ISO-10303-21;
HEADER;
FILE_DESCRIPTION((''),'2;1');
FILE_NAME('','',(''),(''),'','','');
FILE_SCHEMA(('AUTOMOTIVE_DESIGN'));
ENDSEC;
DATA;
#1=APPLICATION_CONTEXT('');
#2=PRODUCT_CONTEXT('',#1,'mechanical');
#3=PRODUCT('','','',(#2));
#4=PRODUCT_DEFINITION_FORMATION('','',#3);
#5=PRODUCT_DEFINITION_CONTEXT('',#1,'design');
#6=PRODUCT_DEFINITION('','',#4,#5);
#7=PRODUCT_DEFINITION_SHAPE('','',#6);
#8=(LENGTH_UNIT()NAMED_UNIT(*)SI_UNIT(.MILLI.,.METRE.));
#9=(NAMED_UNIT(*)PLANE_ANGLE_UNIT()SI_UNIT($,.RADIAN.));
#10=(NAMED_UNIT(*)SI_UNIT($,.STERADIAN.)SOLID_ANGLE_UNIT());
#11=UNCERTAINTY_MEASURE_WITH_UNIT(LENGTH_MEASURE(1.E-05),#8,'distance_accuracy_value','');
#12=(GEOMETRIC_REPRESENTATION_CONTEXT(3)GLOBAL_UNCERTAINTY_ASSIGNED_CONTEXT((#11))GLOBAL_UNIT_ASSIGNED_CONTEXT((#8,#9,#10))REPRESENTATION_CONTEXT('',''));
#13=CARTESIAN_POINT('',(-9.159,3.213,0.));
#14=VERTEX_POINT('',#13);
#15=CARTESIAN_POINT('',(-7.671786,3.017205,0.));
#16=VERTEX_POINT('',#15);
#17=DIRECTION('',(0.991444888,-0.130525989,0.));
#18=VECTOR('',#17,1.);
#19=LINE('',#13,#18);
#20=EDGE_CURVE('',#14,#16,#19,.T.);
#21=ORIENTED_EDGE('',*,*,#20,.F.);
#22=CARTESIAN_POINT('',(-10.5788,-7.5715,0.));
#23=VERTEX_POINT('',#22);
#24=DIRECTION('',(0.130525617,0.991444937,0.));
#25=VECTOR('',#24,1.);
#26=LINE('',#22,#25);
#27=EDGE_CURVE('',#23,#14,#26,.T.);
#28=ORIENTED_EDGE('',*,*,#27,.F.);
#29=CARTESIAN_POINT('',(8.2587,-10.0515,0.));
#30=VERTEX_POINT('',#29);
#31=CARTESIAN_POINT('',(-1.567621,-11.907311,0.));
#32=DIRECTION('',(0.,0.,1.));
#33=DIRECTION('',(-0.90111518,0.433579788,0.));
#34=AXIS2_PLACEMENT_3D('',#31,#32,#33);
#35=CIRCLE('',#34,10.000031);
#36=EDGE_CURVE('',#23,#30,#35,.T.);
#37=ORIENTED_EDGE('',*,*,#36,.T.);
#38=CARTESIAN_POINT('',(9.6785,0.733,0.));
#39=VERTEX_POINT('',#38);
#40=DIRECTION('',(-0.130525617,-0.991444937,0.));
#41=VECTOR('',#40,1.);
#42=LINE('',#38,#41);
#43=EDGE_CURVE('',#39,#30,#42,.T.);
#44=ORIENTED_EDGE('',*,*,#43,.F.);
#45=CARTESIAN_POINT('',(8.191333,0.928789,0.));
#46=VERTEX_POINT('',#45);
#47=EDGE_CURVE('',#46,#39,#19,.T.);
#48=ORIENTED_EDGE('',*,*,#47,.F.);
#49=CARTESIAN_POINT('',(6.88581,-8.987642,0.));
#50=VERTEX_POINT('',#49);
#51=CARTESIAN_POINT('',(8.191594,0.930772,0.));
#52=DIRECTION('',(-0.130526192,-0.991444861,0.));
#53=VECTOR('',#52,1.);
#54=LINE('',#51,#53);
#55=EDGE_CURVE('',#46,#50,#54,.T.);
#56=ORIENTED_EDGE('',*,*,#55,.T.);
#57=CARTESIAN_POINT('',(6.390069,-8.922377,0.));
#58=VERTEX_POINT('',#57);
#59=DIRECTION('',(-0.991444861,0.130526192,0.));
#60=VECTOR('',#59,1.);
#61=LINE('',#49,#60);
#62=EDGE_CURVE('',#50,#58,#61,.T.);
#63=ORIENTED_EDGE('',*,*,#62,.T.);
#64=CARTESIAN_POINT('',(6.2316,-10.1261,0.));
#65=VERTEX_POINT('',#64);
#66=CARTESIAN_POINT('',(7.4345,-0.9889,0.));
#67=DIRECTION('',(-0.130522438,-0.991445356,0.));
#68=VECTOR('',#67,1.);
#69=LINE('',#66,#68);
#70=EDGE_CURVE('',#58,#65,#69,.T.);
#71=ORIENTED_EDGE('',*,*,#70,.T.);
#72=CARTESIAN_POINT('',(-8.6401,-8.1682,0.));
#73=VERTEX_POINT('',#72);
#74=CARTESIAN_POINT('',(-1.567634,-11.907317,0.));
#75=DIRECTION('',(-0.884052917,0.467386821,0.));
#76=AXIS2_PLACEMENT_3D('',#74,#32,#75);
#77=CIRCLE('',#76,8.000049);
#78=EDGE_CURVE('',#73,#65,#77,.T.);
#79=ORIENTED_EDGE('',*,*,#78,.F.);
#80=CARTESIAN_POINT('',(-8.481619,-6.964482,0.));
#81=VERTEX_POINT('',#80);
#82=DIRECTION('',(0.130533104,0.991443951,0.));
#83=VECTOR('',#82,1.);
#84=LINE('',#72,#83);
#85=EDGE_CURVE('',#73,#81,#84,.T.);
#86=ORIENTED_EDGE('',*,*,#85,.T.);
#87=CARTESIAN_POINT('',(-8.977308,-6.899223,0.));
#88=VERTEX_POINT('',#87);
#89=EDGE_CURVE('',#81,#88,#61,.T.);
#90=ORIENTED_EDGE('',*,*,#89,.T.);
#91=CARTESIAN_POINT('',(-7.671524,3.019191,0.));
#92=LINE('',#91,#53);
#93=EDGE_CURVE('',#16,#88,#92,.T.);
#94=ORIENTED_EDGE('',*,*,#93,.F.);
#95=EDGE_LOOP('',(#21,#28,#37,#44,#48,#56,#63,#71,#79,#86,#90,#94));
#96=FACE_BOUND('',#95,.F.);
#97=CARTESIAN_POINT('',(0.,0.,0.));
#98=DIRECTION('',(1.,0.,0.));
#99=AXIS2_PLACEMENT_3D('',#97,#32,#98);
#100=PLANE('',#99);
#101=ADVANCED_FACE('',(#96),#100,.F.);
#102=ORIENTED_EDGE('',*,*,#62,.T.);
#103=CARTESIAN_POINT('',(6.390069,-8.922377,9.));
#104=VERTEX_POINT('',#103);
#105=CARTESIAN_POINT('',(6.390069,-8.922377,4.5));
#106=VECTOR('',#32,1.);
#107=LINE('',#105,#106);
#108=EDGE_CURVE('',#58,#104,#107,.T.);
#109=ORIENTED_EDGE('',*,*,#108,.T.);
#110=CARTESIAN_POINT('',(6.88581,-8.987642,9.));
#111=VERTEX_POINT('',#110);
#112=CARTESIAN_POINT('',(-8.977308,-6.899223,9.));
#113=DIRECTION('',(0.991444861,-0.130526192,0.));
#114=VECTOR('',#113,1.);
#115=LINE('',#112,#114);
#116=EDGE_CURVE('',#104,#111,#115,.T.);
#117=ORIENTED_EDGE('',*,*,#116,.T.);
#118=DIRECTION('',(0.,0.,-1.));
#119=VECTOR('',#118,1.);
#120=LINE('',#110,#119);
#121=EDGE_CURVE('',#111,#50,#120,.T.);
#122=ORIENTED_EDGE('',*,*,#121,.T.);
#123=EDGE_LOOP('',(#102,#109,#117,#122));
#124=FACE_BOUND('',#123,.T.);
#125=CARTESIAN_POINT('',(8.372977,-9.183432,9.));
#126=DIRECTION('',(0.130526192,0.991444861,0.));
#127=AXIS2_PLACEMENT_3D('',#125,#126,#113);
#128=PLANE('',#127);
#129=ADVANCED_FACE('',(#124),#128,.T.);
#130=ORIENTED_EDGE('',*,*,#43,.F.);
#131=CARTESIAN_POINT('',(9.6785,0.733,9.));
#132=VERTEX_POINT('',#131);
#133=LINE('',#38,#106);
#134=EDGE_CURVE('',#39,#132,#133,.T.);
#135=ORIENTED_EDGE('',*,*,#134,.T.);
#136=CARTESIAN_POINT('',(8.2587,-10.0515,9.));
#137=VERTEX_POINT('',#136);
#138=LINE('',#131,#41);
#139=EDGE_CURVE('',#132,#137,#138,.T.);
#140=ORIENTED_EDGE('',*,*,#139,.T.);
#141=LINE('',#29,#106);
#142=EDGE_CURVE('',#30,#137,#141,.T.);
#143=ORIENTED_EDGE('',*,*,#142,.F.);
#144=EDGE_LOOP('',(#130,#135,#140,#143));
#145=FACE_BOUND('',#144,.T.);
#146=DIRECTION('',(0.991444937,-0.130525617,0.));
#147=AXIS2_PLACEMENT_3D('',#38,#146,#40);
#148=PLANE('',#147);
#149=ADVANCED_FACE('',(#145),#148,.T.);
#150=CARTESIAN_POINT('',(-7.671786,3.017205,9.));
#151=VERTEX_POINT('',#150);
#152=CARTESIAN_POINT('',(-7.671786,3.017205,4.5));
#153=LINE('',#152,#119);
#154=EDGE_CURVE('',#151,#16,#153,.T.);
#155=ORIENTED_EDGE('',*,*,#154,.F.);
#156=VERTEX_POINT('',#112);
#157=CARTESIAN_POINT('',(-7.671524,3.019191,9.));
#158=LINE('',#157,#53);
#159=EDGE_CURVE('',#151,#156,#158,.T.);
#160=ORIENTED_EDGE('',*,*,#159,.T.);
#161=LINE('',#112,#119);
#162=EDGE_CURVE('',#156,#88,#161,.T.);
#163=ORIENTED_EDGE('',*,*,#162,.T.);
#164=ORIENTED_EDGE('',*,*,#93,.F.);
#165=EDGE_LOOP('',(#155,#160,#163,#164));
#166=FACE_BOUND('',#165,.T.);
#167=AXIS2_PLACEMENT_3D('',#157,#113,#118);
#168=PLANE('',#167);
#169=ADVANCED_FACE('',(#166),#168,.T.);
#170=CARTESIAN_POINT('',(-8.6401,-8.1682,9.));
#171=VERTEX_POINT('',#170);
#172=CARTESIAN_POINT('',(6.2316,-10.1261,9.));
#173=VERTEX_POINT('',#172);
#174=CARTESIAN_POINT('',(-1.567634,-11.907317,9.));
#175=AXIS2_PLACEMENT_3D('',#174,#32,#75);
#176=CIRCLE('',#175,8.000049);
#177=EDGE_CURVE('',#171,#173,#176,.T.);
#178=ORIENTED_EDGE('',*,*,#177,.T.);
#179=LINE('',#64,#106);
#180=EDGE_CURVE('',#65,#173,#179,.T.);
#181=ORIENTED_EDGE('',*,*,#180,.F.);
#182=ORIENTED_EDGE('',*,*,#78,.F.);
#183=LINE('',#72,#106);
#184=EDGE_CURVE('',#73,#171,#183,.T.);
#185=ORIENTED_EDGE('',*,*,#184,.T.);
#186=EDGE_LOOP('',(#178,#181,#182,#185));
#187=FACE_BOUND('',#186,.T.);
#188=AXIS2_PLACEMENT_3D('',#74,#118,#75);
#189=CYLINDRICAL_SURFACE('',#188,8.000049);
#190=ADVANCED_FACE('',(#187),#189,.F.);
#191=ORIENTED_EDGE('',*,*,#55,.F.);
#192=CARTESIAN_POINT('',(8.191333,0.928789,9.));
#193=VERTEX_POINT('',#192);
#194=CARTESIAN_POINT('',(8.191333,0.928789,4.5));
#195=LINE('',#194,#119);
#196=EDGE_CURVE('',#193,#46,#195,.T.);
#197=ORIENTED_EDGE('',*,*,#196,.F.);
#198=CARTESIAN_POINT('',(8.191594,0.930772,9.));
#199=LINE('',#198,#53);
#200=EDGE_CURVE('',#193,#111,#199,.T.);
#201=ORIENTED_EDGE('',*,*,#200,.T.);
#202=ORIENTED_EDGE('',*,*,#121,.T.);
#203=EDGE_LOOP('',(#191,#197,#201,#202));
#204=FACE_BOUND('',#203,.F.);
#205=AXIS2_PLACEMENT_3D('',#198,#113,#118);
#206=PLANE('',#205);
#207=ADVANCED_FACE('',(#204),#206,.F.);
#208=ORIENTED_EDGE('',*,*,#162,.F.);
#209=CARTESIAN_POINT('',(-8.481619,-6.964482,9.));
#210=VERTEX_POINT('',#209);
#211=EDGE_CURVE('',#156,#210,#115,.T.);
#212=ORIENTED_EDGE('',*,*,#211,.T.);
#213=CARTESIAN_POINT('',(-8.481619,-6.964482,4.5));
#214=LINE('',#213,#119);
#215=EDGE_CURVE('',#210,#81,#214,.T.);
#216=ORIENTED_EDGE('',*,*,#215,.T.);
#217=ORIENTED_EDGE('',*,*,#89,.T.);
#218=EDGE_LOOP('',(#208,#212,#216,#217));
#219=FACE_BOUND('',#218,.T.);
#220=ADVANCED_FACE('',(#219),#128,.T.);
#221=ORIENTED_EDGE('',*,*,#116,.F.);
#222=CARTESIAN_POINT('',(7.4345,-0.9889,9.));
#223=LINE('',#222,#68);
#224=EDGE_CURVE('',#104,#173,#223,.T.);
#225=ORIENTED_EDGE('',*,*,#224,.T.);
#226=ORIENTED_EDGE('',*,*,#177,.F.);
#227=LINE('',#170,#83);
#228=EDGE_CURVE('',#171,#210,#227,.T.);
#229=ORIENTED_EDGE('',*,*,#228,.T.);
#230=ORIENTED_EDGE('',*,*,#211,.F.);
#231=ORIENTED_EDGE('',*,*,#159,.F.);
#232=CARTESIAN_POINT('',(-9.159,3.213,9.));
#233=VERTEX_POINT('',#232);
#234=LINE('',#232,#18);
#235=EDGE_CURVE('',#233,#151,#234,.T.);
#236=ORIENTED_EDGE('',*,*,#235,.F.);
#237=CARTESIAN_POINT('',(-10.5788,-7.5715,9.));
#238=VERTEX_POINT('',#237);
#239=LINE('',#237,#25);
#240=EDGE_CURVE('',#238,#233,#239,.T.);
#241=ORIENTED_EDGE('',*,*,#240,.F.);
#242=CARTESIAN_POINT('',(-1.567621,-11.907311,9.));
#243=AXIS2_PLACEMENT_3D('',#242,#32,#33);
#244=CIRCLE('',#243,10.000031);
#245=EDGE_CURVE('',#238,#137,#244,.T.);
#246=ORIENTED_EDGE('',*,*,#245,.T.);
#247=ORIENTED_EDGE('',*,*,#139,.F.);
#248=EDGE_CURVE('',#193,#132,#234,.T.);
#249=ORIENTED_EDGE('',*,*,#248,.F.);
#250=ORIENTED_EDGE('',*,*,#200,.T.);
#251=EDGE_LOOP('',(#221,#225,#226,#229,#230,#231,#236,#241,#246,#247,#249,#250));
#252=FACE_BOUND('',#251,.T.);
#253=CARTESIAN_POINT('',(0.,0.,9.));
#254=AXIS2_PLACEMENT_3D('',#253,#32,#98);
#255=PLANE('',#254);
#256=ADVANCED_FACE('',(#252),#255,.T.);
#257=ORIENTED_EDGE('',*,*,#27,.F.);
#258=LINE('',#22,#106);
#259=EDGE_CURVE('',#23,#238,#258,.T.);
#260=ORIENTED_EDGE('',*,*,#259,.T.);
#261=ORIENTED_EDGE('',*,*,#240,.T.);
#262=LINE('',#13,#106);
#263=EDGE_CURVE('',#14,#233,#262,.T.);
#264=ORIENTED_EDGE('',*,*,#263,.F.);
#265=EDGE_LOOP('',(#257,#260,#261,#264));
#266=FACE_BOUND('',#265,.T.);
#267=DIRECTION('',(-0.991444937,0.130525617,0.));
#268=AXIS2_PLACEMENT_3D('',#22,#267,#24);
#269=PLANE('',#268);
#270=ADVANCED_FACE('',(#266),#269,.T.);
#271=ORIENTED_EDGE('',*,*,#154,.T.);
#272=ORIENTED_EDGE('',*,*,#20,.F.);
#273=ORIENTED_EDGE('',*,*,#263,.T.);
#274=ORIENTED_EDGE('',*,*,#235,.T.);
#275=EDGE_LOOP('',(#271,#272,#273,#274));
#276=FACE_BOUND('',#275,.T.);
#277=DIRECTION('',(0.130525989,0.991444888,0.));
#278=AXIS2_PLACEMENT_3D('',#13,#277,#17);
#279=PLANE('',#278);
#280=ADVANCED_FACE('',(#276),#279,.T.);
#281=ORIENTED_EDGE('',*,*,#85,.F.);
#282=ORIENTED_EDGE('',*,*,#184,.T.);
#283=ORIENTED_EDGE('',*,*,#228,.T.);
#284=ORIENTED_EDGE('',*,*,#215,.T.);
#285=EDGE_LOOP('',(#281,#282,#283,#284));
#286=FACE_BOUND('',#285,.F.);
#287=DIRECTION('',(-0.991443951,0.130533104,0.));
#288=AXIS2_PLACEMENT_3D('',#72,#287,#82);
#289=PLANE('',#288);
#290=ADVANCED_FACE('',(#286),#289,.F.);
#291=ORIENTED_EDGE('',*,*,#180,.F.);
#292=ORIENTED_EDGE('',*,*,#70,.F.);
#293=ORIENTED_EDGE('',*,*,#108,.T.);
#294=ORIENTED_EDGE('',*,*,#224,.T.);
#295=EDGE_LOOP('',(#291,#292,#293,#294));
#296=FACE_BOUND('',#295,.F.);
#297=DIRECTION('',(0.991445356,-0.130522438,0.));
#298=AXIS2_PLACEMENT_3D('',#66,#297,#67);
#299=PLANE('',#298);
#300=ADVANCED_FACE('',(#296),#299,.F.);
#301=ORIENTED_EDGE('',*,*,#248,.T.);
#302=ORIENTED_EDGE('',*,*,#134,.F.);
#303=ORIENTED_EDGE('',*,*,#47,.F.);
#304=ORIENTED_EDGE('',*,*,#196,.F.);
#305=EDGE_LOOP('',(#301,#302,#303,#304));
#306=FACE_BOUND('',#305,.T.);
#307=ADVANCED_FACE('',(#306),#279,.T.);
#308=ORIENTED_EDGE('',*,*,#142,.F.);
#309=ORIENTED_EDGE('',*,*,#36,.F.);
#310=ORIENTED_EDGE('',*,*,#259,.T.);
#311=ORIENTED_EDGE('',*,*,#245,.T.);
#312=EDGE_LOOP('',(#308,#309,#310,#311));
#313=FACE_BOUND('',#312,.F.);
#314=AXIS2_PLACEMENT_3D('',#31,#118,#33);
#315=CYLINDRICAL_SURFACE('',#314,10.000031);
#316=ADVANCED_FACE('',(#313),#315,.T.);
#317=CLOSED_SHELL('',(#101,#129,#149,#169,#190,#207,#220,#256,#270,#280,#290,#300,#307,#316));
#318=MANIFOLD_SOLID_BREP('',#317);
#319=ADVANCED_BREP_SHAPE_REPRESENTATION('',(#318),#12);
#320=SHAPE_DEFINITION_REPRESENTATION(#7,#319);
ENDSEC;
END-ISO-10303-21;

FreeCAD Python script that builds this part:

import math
import FreeCAD as App
import Part
import Sketcher
Q = App.Units.Quantity

doc = App.newDocument("Part")
params = doc.addObject("Spreadsheet::Sheet", "Params")
for row, (alias, value) in enumerate([
    ("sketch1_radius", "10 mm"),
    ("sketch1_radius2", "8 mm"),
    ("sketch1_length", "19 mm"),
    ("sketch1_length2", "15 mm"),
    ("pad1_length", "9 mm"),
    ("sketch2_width", "16 mm"),
    ("sketch2_height", "9 mm"),
    ("pocket1_length", "10 mm"),
], start=1):
    params.set(f"A{row}", alias)
    params.set(f"B{row}", "=" + value)
    params.setAlias(f"B{row}", alias)

body = doc.addObject("PartDesign::Body", "Body")

# Sketch on XY plane
sketch1 = body.newObject("Sketcher::SketchObject", "Sketch")
sketch1.AttachmentSupport = (doc.getObject("XY_Plane"), [""])
sketch1.MapMode = "FlatFace"
sketch1.addGeometry([
    Part.LineSegment(App.Vector(-9, 3, 0), App.Vector(-11, -8, 0)),  # 0
    Part.ArcOfCircle(Part.Circle(App.Vector(-2, -12, 0), App.Vector(0, 0, 1), 10), math.radians(154), math.radians(371)),  # 1
    Part.LineSegment(App.Vector(8, -10, 0), App.Vector(10, 1, 0)),  # 2
    Part.LineSegment(App.Vector(10, 1, 0), App.Vector(-9, 3, 0)),  # 3
    Part.ArcOfCircle(Part.Circle(App.Vector(-2, -12, 0), App.Vector(0, 0, 1), 8), math.radians(152), math.radians(373)),  # 4
    Part.LineSegment(App.Vector(-9, -8, 0), App.Vector(-7, 1, 0)),  # 5
    Part.LineSegment(App.Vector(-7, 1, 0), App.Vector(7, -1, 0)),  # 6
    Part.LineSegment(App.Vector(7, -1, 0), App.Vector(6, -10, 0)),  # 7
], False)
sketch1.addConstraint([
    Sketcher.Constraint("Coincident", 0, 2, 1, 1),
    Sketcher.Constraint("Coincident", 1, 2, 2, 1),
    Sketcher.Constraint("Coincident", 2, 2, 3, 1),
    Sketcher.Constraint("Coincident", 3, 2, 0, 1),
    Sketcher.Constraint("Coincident", 4, 1, 5, 1),
    Sketcher.Constraint("Coincident", 5, 2, 6, 1),
    Sketcher.Constraint("Coincident", 6, 2, 7, 1),
    Sketcher.Constraint("Coincident", 7, 2, 4, 2),
    Sketcher.Constraint("Coincident", 4, 3, 1, 3),
    Sketcher.Constraint("Parallel", 0, 2),
    Sketcher.Constraint("Perpendicular", 2, 3),
    Sketcher.Constraint("Perpendicular", 3, 5),
    Sketcher.Constraint("Perpendicular", 5, 6),
    Sketcher.Constraint("Perpendicular", 6, 7),
    Sketcher.Constraint("Equal", 0, 2),
    Sketcher.Constraint("Equal", 5, 7),
    Sketcher.Constraint("Radius", 1, Q("10 mm")),
    Sketcher.Constraint("Radius", 4, Q("8 mm")),
    Sketcher.Constraint("Distance", 3, Q("19 mm")),
    Sketcher.Constraint("Distance", 6, Q("15 mm")),
    Sketcher.Constraint("Angle", 0, Q("-97.5 deg")),
    Sketcher.Constraint("DistanceX", 4, 1, -1, 1, Q("8.64 mm")),
    Sketcher.Constraint("Distance", 5, Q("9.216 mm")),
    Sketcher.Constraint("DistanceY", -1, 1, 2, 2, Q("0.733 mm")),
    Sketcher.Constraint("DistanceX", 3, 2, -1, 1, Q("9.159 mm")),
])
sketch1.setExpression("Constraints[16]", "Params.sketch1_radius")
sketch1.setExpression("Constraints[17]", "Params.sketch1_radius2")
sketch1.setExpression("Constraints[18]", "Params.sketch1_length")
sketch1.setExpression("Constraints[19]", "Params.sketch1_length2")
pad1 = body.newObject("PartDesign::Pad", "Pad")
pad1.Profile = sketch1
pad1.setExpression("Length", "Params.pad1_length")

# Sketch on an angled plane
sketch2 = body.newObject("Sketcher::SketchObject", "Sketch001")
sketch2.Placement = App.Placement(App.Vector(9.6785, 0.733, 9), App.Rotation(App.Vector(0.991444861, -0.130526192, 0), App.Vector(0, 0, -0.999999999), App.Vector(0.130526192, 0.991444861, 0), "ZXY"))
sketch2.addGeometry([
    Part.LineSegment(App.Vector(-17, 9, 0), App.Vector(-17, 0, 0)),
    Part.LineSegment(App.Vector(-17, 0, 0), App.Vector(-1, 0, 0)),
    Part.LineSegment(App.Vector(-1, 0, 0), App.Vector(-1, 9, 0)),
    Part.LineSegment(App.Vector(-1, 9, 0), App.Vector(-17, 9, 0)),
], False)
sketch2.addConstraint([
    Sketcher.Constraint("Coincident", 0, 2, 1, 1),
    Sketcher.Constraint("Coincident", 1, 2, 2, 1),
    Sketcher.Constraint("Coincident", 2, 2, 3, 1),
    Sketcher.Constraint("Coincident", 3, 2, 0, 1),
    Sketcher.Constraint("Vertical", 0),
    Sketcher.Constraint("Horizontal", 1),
    Sketcher.Constraint("Vertical", 2),
    Sketcher.Constraint("Horizontal", 3),
    Sketcher.Constraint("PointOnObject", 0, 2, -1),
    Sketcher.Constraint("DistanceX", 1, 1, 1, 2, Q("16 mm")),
    Sketcher.Constraint("DistanceY", 0, 2, 0, 1, Q("9 mm")),
    Sketcher.Constraint("DistanceX", 0, 2, -1, 1, Q("17.5 mm")),
])
sketch2.setExpression("Constraints[9]", "Params.sketch2_width")
sketch2.setExpression("Constraints[10]", "Params.sketch2_height")
pocket1 = body.newObject("PartDesign::Pocket", "Pocket")
pocket1.Profile = sketch2
pocket1.setExpression("Length", "Params.pocket1_length")

doc.recompute()
